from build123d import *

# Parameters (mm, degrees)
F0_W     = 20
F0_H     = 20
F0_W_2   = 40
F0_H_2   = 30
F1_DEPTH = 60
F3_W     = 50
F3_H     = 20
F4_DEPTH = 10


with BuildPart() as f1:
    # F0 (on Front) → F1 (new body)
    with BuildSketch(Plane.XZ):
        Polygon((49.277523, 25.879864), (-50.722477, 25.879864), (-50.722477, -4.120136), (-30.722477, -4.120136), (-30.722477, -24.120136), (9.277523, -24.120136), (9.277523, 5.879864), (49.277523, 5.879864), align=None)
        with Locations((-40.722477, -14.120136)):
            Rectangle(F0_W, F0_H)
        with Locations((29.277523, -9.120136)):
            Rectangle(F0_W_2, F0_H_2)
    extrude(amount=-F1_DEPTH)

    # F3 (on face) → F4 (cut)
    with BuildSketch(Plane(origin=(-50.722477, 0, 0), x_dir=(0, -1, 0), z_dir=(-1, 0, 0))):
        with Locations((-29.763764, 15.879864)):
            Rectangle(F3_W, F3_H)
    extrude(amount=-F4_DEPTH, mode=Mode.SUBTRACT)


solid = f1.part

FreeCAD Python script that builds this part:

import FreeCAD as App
import Part
import Sketcher
from FreeCAD import Vector
Q = App.Units.Quantity

doc = App.newDocument("Part")
body = doc.addObject("PartDesign::Body", "Body")

sketch1 = body.newObject("Sketcher::SketchObject", "Sketch")
sketch1.AttachmentSupport = (doc.getObject("XZ_Plane"), [""])
sketch1.MapMode = "FlatFace"
sketch1.addGeometry([
    Part.LineSegment(Vector(49.277523, 25.879864, 0), Vector(-50.722477, 25.879864, 0)),
    Part.LineSegment(Vector(-50.722477, 25.879864, 0), Vector(-50.722477, -24.120136, 0)),
    Part.LineSegment(Vector(-50.722477, -24.120136, 0), Vector(49.277523, -24.120136, 0)),
    Part.LineSegment(Vector(49.277523, -24.120136, 0), Vector(49.277523, 25.879864, 0)),
], False)
sketch1.addConstraint([
    Sketcher.Constraint("Coincident", 0, 2, 1, 1),
    Sketcher.Constraint("Coincident", 1, 2, 2, 1),
    Sketcher.Constraint("Coincident", 2, 2, 3, 1),
    Sketcher.Constraint("Coincident", 3, 2, 0, 1),
    Sketcher.Constraint("Horizontal", 0),
    Sketcher.Constraint("Vertical", 1),
    Sketcher.Constraint("Horizontal", 2),
    Sketcher.Constraint("Vertical", 3),
    Sketcher.Constraint("DistanceX", 0, 2, 0, 1, Q("100 mm")),
    Sketcher.Constraint("DistanceY", 1, 2, 1, 1, Q("50 mm")),
    Sketcher.Constraint("DistanceX", 0, 2, -1, 1, Q("50.722477 mm")),
    Sketcher.Constraint("DistanceY", -1, 1, 0, 2, Q("25.879864 mm")),
])
pad1 = body.newObject("PartDesign::Pad", "Pad")
pad1.Profile = sketch1
pad1.Length = 60
pad1.Reversed = True

sketch2 = body.newObject("Sketcher::SketchObject", "Sketch001")
sketch2.AttachmentSupport = (doc.getObject("YZ_Plane"), [""])
sketch2.MapMode = "FlatFace"
sketch2.AttachmentOffset = App.Placement(Vector(0, 0, -50.722477), App.Rotation())
sketch2.addGeometry([
    Part.LineSegment(Vector(54.763764, 25.879864, 0), Vector(54.763764, 5.879864, 0)),
    Part.LineSegment(Vector(54.763764, 5.879864, 0), Vector(4.763764, 5.879864, 0)),
    Part.LineSegment(Vector(4.763764, 5.879864, 0), Vector(4.763764, 25.879864, 0)),
    Part.LineSegment(Vector(4.763764, 25.879864, 0), Vector(54.763764, 25.879864, 0)),
], False)
sketch2.addConstraint([
    Sketcher.Constraint("Coincident", 0, 2, 1, 1),
    Sketcher.Constraint("Coincident", 1, 2, 2, 1),
    Sketcher.Constraint("Coincident", 2, 2, 3, 1),
    Sketcher.Constraint("Coincident", 3, 2, 0, 1),
    Sketcher.Constraint("Vertical", 0),
    Sketcher.Constraint("Horizontal", 1),
    Sketcher.Constraint("Vertical", 2),
    Sketcher.Constraint("Horizontal", 3),
    Sketcher.Constraint("DistanceX", 1, 2, 1, 1, Q("50 mm")),
    Sketcher.Constraint("DistanceY", 0, 2, 0, 1, Q("20 mm")),
    Sketcher.Constraint("DistanceX", -1, 1, 0, 2, Q("54.763764 mm")),
    Sketcher.Constraint("DistanceY", -1, 1, 0, 2, Q("5.879864 mm")),
])
pocket1 = body.newObject("PartDesign::Pocket", "Pocket")
pocket1.Profile = sketch2
pocket1.Length = 10
pocket1.Reversed = True

doc.recompute()
